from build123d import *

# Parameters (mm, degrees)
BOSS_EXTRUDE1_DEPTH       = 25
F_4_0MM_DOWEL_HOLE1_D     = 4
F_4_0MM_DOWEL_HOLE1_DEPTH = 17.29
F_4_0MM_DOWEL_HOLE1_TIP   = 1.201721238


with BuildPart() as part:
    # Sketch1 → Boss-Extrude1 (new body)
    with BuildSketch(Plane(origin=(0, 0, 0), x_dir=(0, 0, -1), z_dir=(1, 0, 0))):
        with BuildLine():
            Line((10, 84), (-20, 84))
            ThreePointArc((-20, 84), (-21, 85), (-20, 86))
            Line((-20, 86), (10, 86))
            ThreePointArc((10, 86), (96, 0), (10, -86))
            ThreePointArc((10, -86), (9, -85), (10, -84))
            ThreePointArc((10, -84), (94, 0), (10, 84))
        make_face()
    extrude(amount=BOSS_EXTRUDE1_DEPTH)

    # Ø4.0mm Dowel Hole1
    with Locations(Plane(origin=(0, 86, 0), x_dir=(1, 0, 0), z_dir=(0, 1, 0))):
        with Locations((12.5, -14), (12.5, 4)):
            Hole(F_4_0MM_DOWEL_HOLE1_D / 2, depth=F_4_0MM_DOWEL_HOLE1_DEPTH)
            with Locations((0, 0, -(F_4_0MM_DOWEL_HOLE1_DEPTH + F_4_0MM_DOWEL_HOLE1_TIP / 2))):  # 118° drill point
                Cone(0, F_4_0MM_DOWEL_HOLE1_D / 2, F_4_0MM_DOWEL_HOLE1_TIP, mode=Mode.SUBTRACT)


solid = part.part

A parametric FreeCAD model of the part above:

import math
import FreeCAD as App
import Part
import Sketcher
Q = App.Units.Quantity

doc = App.newDocument("Part")
body = doc.addObject("PartDesign::Body", "Body")

# Sketch on YZ plane
sketch1 = body.newObject("Sketcher::SketchObject", "Sketch")
sketch1.AttachmentSupport = (doc.getObject("YZ_Plane"), [""])
sketch1.MapMode = "FlatFace"
sketch1.addGeometry([
    Part.LineSegment(App.Vector(84, 20, 0), App.Vector(84, -10, 0)),  # 0
    Part.ArcOfCircle(Part.Circle(App.Vector(0, -10, 0), App.Vector(0, 0, 1), 84), math.radians(180), math.radians(360)),  # 1
    Part.ArcOfCircle(Part.Circle(App.Vector(-85, -10, 0), App.Vector(0, 0, 1), 1), math.radians(0), math.radians(180)),  # 2
    Part.ArcOfCircle(Part.Circle(App.Vector(0, -10, 0), App.Vector(0, 0, 1), 86), math.radians(180), math.radians(360)),  # 3
    Part.LineSegment(App.Vector(86, -10, 0), App.Vector(86, 20, 0)),  # 4
    Part.ArcOfCircle(Part.Circle(App.Vector(85, 20, 0), App.Vector(0, 0, 1), 1), math.radians(0), math.radians(180)),  # 5
], False)
sketch1.addConstraint([
    Sketcher.Constraint("Tangent", 0, 2, 1, 2),
    Sketcher.Constraint("Tangent", 1, 1, 2, 1),
    Sketcher.Constraint("Tangent", 2, 2, 3, 1),
    Sketcher.Constraint("Tangent", 3, 2, 4, 1),
    Sketcher.Constraint("Tangent", 4, 2, 5, 1),
    Sketcher.Constraint("Tangent", 5, 2, 0, 1),
    Sketcher.Constraint("Vertical", 0),
    Sketcher.Constraint("Vertical", 4),
    Sketcher.Constraint("Coincident", 3, 3, 1, 3),
    Sketcher.Constraint("Symmetric", 0, 2, 1, 1, -2),
    Sketcher.Constraint("Radius", 1, Q("84 mm")),
    Sketcher.Constraint("Radius", 2, Q("1 mm")),
    Sketcher.Constraint("DistanceY", 0, 2, 0, 1, Q("30 mm")),
    Sketcher.Constraint("DistanceY", 1, 3, -1, 1, Q("10 mm")),
])
pad1 = body.newObject("PartDesign::Pad", "Pad")
pad1.Profile = sketch1
pad1.Length = 25

# Sketch on XZ plane
sketch2 = body.newObject("Sketcher::SketchObject", "Sketch001")
sketch2.AttachmentSupport = (doc.getObject("XZ_Plane"), [""])
sketch2.MapMode = "FlatFace"
sketch2.AttachmentOffset = App.Placement(App.Vector(0, 0, -86), App.Rotation())
sketch2.addGeometry([
    Part.Circle(App.Vector(12.5, 14, 0), App.Vector(0, 0, 1), 2),
    Part.Circle(App.Vector(12.5, -4, 0), App.Vector(0, 0, 1), 2),
], False)
sketch2.addConstraint([
    Sketcher.Constraint("Equal", 0, 1),
    Sketcher.Constraint("Vertical", 0, 3, 1, 3),
    Sketcher.Constraint("Diameter", 0, Q("4 mm")),
    Sketcher.Constraint("DistanceY", -1, 1, 0, 3, Q("14 mm")),
    Sketcher.Constraint("DistanceY", 1, 3, -1, 1, Q("4 mm")),
    Sketcher.Constraint("DistanceX", -1, 1, 0, 3, Q("12.5 mm")),
])
doc.recompute()
hole = body.newObject("PartDesign::Hole", "Hole")
hole.Profile = sketch2
hole.ThreadType = "None"
hole.Diameter = 4
hole.DepthType = "Dimension"
hole.Depth = 17.29
hole.DrillPoint = "Angled"
hole.DrillPointAngle = 118
hole.Reversed = True

doc.recompute()
